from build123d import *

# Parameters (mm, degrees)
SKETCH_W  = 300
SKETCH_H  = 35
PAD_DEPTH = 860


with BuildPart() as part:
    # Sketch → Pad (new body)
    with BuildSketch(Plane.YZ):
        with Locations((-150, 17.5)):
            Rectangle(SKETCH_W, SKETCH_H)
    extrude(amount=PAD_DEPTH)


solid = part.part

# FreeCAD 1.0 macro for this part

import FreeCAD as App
import Part
import Sketcher
from FreeCAD import Vector


def add_polygon(sketch, points):
    """Adds a closed chain of lines whose ends are joined by coincident constraints."""
    first, n = sketch.GeometryCount, len(points)
    for a, b in zip(points, points[1:] + points[:1]):
        sketch.addGeometry(Part.LineSegment(App.Vector(*a, 0), App.Vector(*b, 0)), False)
    for i in range(n):
        sketch.addConstraint(Sketcher.Constraint("Coincident", first + i, 2, first + (i + 1) % n, 1))

doc = App.newDocument("Part")
body = doc.addObject("PartDesign::Body", "Body")

# Sketch on YZ plane
sketch1 = body.newObject("Sketcher::SketchObject", "Sketch")
sketch1.AttachmentSupport = (doc.getObject("YZ_Plane"), [""])
sketch1.MapMode = "FlatFace"
add_polygon(sketch1, [(-300, 35), (-300, 0), (0, 0), (0, 35)])  # lines 0-3
sketch1.addConstraint(Sketcher.Constraint("Vertical", 0))
sketch1.addConstraint(Sketcher.Constraint("Horizontal", 1))
sketch1.addConstraint(Sketcher.Constraint("Vertical", 2))
sketch1.addConstraint(Sketcher.Constraint("Horizontal", 3))
sketch1.addConstraint(Sketcher.Constraint("Coincident", 1, 2, -1, 1))
sketch1.addConstraint(Sketcher.Constraint("DistanceX", 1, 1, 1, 2, 300.0))
sketch1.addConstraint(Sketcher.Constraint("DistanceY", 0, 2, 0, 1, 35.0))
pad1 = body.newObject("PartDesign::Pad", "Pad")
pad1.Profile = sketch1
pad1.Length = 860

doc.recompute()
